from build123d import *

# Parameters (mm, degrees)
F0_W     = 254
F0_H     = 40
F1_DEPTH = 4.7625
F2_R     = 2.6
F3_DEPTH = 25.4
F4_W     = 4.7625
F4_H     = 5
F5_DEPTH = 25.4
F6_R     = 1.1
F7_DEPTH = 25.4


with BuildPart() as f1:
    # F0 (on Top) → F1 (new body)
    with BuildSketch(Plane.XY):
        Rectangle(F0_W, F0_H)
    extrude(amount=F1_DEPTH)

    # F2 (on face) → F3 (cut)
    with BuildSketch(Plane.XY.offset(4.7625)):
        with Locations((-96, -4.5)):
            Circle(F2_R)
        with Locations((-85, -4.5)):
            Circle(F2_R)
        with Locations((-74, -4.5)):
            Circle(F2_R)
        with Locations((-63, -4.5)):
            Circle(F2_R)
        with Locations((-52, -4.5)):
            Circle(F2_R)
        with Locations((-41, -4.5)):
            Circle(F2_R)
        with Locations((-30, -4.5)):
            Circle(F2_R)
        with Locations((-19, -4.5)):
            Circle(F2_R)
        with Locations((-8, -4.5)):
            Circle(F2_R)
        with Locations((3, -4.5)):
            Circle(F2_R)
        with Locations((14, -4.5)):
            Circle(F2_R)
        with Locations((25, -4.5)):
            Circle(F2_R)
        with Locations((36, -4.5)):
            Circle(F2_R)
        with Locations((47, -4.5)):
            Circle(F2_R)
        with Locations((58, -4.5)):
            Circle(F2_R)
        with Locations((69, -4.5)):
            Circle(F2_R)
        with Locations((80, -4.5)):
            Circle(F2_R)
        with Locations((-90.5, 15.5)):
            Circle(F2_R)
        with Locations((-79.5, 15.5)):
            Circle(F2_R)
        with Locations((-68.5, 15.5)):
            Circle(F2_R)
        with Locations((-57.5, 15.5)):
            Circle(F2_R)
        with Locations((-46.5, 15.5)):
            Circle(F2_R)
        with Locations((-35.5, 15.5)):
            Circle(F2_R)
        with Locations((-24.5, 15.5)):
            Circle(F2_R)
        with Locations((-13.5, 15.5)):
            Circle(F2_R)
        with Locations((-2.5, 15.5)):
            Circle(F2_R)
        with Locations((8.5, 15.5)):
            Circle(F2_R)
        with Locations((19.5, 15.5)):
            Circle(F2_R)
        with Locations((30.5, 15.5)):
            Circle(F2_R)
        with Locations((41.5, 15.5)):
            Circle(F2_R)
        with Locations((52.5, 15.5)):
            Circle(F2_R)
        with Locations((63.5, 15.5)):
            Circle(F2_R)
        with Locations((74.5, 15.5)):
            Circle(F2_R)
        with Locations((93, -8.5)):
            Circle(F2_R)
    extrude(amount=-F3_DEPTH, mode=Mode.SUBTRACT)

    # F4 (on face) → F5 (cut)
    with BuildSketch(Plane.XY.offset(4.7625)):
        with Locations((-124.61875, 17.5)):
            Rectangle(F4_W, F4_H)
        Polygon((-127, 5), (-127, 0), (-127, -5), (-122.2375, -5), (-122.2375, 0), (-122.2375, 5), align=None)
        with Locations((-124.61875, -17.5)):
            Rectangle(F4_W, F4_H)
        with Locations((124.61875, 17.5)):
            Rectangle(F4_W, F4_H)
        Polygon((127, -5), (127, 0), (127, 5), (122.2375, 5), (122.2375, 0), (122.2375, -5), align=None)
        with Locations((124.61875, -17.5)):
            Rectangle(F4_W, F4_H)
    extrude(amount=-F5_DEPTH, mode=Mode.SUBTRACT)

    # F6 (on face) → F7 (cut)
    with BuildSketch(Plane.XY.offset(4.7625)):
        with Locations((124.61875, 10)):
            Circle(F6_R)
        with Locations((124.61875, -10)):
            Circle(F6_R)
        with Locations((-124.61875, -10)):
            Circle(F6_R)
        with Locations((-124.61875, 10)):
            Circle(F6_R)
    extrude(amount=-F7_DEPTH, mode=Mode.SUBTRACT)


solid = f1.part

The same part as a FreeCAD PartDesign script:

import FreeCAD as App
import Part
import Sketcher


def add_polygon(sketch, points):
    """Adds a closed chain of lines whose ends are joined by coincident constraints."""
    first, n = sketch.GeometryCount, len(points)
    for a, b in zip(points, points[1:] + points[:1]):
        sketch.addGeometry(Part.LineSegment(App.Vector(*a, 0), App.Vector(*b, 0)), False)
    for i in range(n):
        sketch.addConstraint(Sketcher.Constraint("Coincident", first + i, 2, first + (i + 1) % n, 1))

doc = App.newDocument("Part")
body = doc.addObject("PartDesign::Body", "Body")

# Sketch on XY plane
sketch1 = body.newObject("Sketcher::SketchObject", "Sketch")
sketch1.AttachmentSupport = (doc.getObject("XY_Plane"), [""])
sketch1.MapMode = "FlatFace"
add_polygon(sketch1, [(-127, 20), (-127, -20), (127, -20), (127, 20)])  # lines 0-3
sketch1.addConstraint([
    Sketcher.Constraint("Vertical", 0),
    Sketcher.Constraint("Horizontal", 1),
    Sketcher.Constraint("Vertical", 2),
    Sketcher.Constraint("Horizontal", 3),
    Sketcher.Constraint("Symmetric", 0, 2, 2, 2, -1, 1),
    Sketcher.Constraint("DistanceX", 1, 1, 1, 2, 254.0),
    Sketcher.Constraint("DistanceY", 0, 2, 0, 1, 40.0),
])
pad1 = body.newObject("PartDesign::Pad", "Pad")
pad1.Profile = sketch1
pad1.Length = 4.7625

# Sketch on XY plane
sketch2 = body.newObject("Sketcher::SketchObject", "Sketch001")
sketch2.AttachmentSupport = (doc.getObject("XY_Plane"), [""])
sketch2.MapMode = "FlatFace"
sketch2.AttachmentOffset = App.Placement(App.Vector(0, 0, 4.7625), App.Rotation())
sketch2.addGeometry([
    Part.Circle(App.Vector(-96, -4.5, 0), App.Vector(0, 0, 1), 2.6),  # 0
    Part.Circle(App.Vector(-85, -4.5, 0), App.Vector(0, 0, 1), 2.6),  # 1
    Part.Circle(App.Vector(-74, -4.5, 0), App.Vector(0, 0, 1), 2.6),  # 2
    Part.Circle(App.Vector(-63, -4.5, 0), App.Vector(0, 0, 1), 2.6),  # 3
    Part.Circle(App.Vector(-52, -4.5, 0), App.Vector(0, 0, 1), 2.6),  # 4
    Part.Circle(App.Vector(-41, -4.5, 0), App.Vector(0, 0, 1), 2.6),  # 5
    Part.Circle(App.Vector(-30, -4.5, 0), App.Vector(0, 0, 1), 2.6),  # 6
    Part.Circle(App.Vector(-19, -4.5, 0), App.Vector(0, 0, 1), 2.6),  # 7
    Part.Circle(App.Vector(-8, -4.5, 0), App.Vector(0, 0, 1), 2.6),  # 8
    Part.Circle(App.Vector(3, -4.5, 0), App.Vector(0, 0, 1), 2.6),  # 9
    Part.Circle(App.Vector(14, -4.5, 0), App.Vector(0, 0, 1), 2.6),  # 10
    Part.Circle(App.Vector(25, -4.5, 0), App.Vector(0, 0, 1), 2.6),  # 11
    Part.Circle(App.Vector(36, -4.5, 0), App.Vector(0, 0, 1), 2.6),  # 12
    Part.Circle(App.Vector(47, -4.5, 0), App.Vector(0, 0, 1), 2.6),  # 13
    Part.Circle(App.Vector(58, -4.5, 0), App.Vector(0, 0, 1), 2.6),  # 14
    Part.Circle(App.Vector(69, -4.5, 0), App.Vector(0, 0, 1), 2.6),  # 15
    Part.Circle(App.Vector(80, -4.5, 0), App.Vector(0, 0, 1), 2.6),  # 16
    Part.Circle(App.Vector(-90.5, 15.5, 0), App.Vector(0, 0, 1), 2.6),  # 17
    Part.Circle(App.Vector(-79.5, 15.5, 0), App.Vector(0, 0, 1), 2.6),  # 18
    Part.Circle(App.Vector(-68.5, 15.5, 0), App.Vector(0, 0, 1), 2.6),  # 19
    Part.Circle(App.Vector(-57.5, 15.5, 0), App.Vector(0, 0, 1), 2.6),  # 20
    Part.Circle(App.Vector(-46.5, 15.5, 0), App.Vector(0, 0, 1), 2.6),  # 21
    Part.Circle(App.Vector(-35.5, 15.5, 0), App.Vector(0, 0, 1), 2.6),  # 22
    Part.Circle(App.Vector(-24.5, 15.5, 0), App.Vector(0, 0, 1), 2.6),  # 23
    Part.Circle(App.Vector(-13.5, 15.5, 0), App.Vector(0, 0, 1), 2.6),  # 24
    Part.Circle(App.Vector(-2.5, 15.5, 0), App.Vector(0, 0, 1), 2.6),  # 25
    Part.Circle(App.Vector(8.5, 15.5, 0), App.Vector(0, 0, 1), 2.6),  # 26
    Part.Circle(App.Vector(19.5, 15.5, 0), App.Vector(0, 0, 1), 2.6),  # 27
    Part.Circle(App.Vector(30.5, 15.5, 0), App.Vector(0, 0, 1), 2.6),  # 28
    Part.Circle(App.Vector(41.5, 15.5, 0), App.Vector(0, 0, 1), 2.6),  # 29
    Part.Circle(App.Vector(52.5, 15.5, 0), App.Vector(0, 0, 1), 2.6),  # 30
    Part.Circle(App.Vector(63.5, 15.5, 0), App.Vector(0, 0, 1), 2.6),  # 31
    Part.Circle(App.Vector(74.5, 15.5, 0), App.Vector(0, 0, 1), 2.6),  # 32
    Part.Circle(App.Vector(93, -8.5, 0), App.Vector(0, 0, 1), 2.6),  # 33
], False)
sketch2.addConstraint([
    Sketcher.Constraint("Equal", 0, 1),
    Sketcher.Constraint("Equal", 1, 2),
    Sketcher.Constraint("Equal", 2, 3),
    Sketcher.Constraint("Equal", 3, 4),
    Sketcher.Constraint("Equal", 4, 5),
    Sketcher.Constraint("Equal", 5, 6),
    Sketcher.Constraint("Equal", 6, 7),
    Sketcher.Constraint("Equal", 7, 8),
    Sketcher.Constraint("Equal", 8, 9),
    Sketcher.Constraint("Equal", 9, 10),
    Sketcher.Constraint("Equal", 10, 11),
    Sketcher.Constraint("Equal", 11, 12),
    Sketcher.Constraint("Equal", 12, 13),
    Sketcher.Constraint("Equal", 13, 14),
    Sketcher.Constraint("Equal", 14, 15),
    Sketcher.Constraint("Equal", 15, 16),
    Sketcher.Constraint("Equal", 16, 17),
    Sketcher.Constraint("Equal", 17, 18),
    Sketcher.Constraint("Equal", 18, 19),
    Sketcher.Constraint("Equal", 19, 20),
    Sketcher.Constraint("Equal", 20, 21),
    Sketcher.Constraint("Equal", 21, 22),
    Sketcher.Constraint("Equal", 22, 23),
    Sketcher.Constraint("Equal", 23, 24),
    Sketcher.Constraint("Equal", 24, 25),
    Sketcher.Constraint("Equal", 25, 26),
    Sketcher.Constraint("Equal", 26, 27),
    Sketcher.Constraint("Equal", 27, 28),
    Sketcher.Constraint("Equal", 28, 29),
    Sketcher.Constraint("Equal", 29, 30),
    Sketcher.Constraint("Equal", 30, 31),
    Sketcher.Constraint("Equal", 31, 32),
    Sketcher.Constraint("Equal", 32, 33),
    Sketcher.Constraint("Horizontal", 0, 3, 1, 3),
    Sketcher.Constraint("Horizontal", 1, 3, 2, 3),
    Sketcher.Constraint("Horizontal", 2, 3, 3, 3),
    Sketcher.Constraint("Horizontal", 3, 3, 4, 3),
    Sketcher.Constraint("Horizontal", 4, 3, 5, 3),
    Sketcher.Constraint("Horizontal", 5, 3, 6, 3),
    Sketcher.Constraint("Horizontal", 6, 3, 7, 3),
    Sketcher.Constraint("Horizontal", 7, 3, 8, 3),
    Sketcher.Constraint("Horizontal", 8, 3, 9, 3),
    Sketcher.Constraint("Horizontal", 9, 3, 10, 3),
    Sketcher.Constraint("Horizontal", 10, 3, 11, 3),
    Sketcher.Constraint("Horizontal", 11, 3, 12, 3),
    Sketcher.Constraint("Horizontal", 12, 3, 13, 3),
    Sketcher.Constraint("Horizontal", 13, 3, 14, 3),
    Sketcher.Constraint("Horizontal", 14, 3, 15, 3),
    Sketcher.Constraint("Horizontal", 15, 3, 16, 3),
    Sketcher.Constraint("Horizontal", 17, 3, 18, 3),
    Sketcher.Constraint("Horizontal", 18, 3, 19, 3),
    Sketcher.Constraint("Horizontal", 19, 3, 20, 3),
    Sketcher.Constraint("Horizontal", 20, 3, 21, 3),
    Sketcher.Constraint("Horizontal", 21, 3, 22, 3),
    Sketcher.Constraint("Horizontal", 22, 3, 23, 3),
    Sketcher.Constraint("Horizontal", 23, 3, 24, 3),
    Sketcher.Constraint("Horizontal", 24, 3, 25, 3),
    Sketcher.Constraint("Horizontal", 25, 3, 26, 3),
    Sketcher.Constraint("Horizontal", 26, 3, 27, 3),
    Sketcher.Constraint("Horizontal", 27, 3, 28, 3),
    Sketcher.Constraint("Horizontal", 28, 3, 29, 3),
    Sketcher.Constraint("Horizontal", 29, 3, 30, 3),
    Sketcher.Constraint("Horizontal", 30, 3, 31, 3),
    Sketcher.Constraint("Horizontal", 31, 3, 32, 3),
    Sketcher.Constraint("Diameter", 0, 5.2),
    Sketcher.Constraint("DistanceX", 0, 3, -1, 1, 96.0),
    Sketcher.Constraint("DistanceX", 1, 3, -1, 1, 85.0),
    Sketcher.Constraint("DistanceX", 2, 3, -1, 1, 74.0),
    Sketcher.Constraint("DistanceX", 3, 3, -1, 1, 63.0),
    Sketcher.Constraint("DistanceX", 4, 3, -1, 1, 52.0),
    Sketcher.Constraint("DistanceX", 5, 3, -1, 1, 41.0),
    Sketcher.Constraint("DistanceX", 6, 3, -1, 1, 30.0),
    Sketcher.Constraint("DistanceX", 7, 3, -1, 1, 19.0),
    Sketcher.Constraint("DistanceX", 8, 3, -1, 1, 8.0),
    Sketcher.Constraint("DistanceX", -1, 1, 9, 3, 3.0),
    Sketcher.Constraint("DistanceX", -1, 1, 10, 3, 14.0),
    Sketcher.Constraint("DistanceX", -1, 1, 11, 3, 25.0),
    Sketcher.Constraint("DistanceX", -1, 1, 12, 3, 36.0),
    Sketcher.Constraint("DistanceX", -1, 1, 13, 3, 47.0),
    Sketcher.Constraint("DistanceX", -1, 1, 14, 3, 58.0),
    Sketcher.Constraint("DistanceX", -1, 1, 15, 3, 69.0),
    Sketcher.Constraint("DistanceX", -1, 1, 16, 3, 80.0),
    Sketcher.Constraint("DistanceX", -1, 1, 33, 3, 93.0),
    Sketcher.Constraint("DistanceY", 0, 3, 17, 3, 20.0),
    Sketcher.Constraint("DistanceX", 17, 3, 18, 3, 11.0),
    Sketcher.Constraint("DistanceX", 18, 3, 19, 3, 11.0),
    Sketcher.Constraint("DistanceX", 19, 3, 20, 3, 11.0),
    Sketcher.Constraint("DistanceX", 20, 3, 21, 3, 11.0),
    Sketcher.Constraint("DistanceX", 21, 3, 22, 3, 11.0),
    Sketcher.Constraint("DistanceX", 22, 3, 23, 3, 11.0),
    Sketcher.Constraint("DistanceX", 23, 3, 24, 3, 11.0),
    Sketcher.Constraint("DistanceX", 24, 3, 25, 3, 11.0),
    Sketcher.Constraint("DistanceX", 25, 3, 26, 3, 11.0),
    Sketcher.Constraint("DistanceX", 26, 3, 27, 3, 11.0),
    Sketcher.Constraint("DistanceX", 27, 3, 28, 3, 11.0),
    Sketcher.Constraint("DistanceX", 28, 3, 29, 3, 11.0),
    Sketcher.Constraint("DistanceX", 29, 3, 30, 3, 11.0),
    Sketcher.Constraint("DistanceX", 30, 3, 31, 3, 11.0),
    Sketcher.Constraint("DistanceX", 31, 3, 32, 3, 11.0),
    Sketcher.Constraint("DistanceY", 33, 3, 16, 3, 4.0),
    Sketcher.Constraint("DistanceY", 0, 3, -1, 1, 4.5),
    Sketcher.Constraint("DistanceX", 17, 3, -1, 1, 90.5),
])
pocket1 = body.newObject("PartDesign::Pocket", "Pocket")
pocket1.Profile = sketch2
pocket1.Length = 25.4

# Sketch on XY plane
sketch3 = body.newObject("Sketcher::SketchObject", "Sketch002")
sketch3.AttachmentSupport = (doc.getObject("XY_Plane"), [""])
sketch3.MapMode = "FlatFace"
sketch3.AttachmentOffset = App.Placement(App.Vector(0, 0, 4.7625), App.Rotation())
add_polygon(sketch3, [(-127, 20), (-127, 15), (-122.2375, 15), (-122.2375, 20)])  # lines 0-3
add_polygon(sketch3, [(-127, 5), (-127, -5), (-122.2375, -5), (-122.2375, 5)])  # lines 4-7
add_polygon(sketch3, [(-127, -15), (-127, -20), (-122.2375, -20), (-122.2375, -15)])  # lines 8-11
add_polygon(sketch3, [(122.2375, 20), (122.2375, 15), (127, 15), (127, 20)])  # lines 12-15
add_polygon(sketch3, [(127, -5), (127, 5), (122.2375, 5), (122.2375, -5)])  # lines 16-19
add_polygon(sketch3, [(122.2375, -15), (122.2375, -20), (127, -20), (127, -15)])  # lines 20-23
sketch3.addConstraint([
    Sketcher.Constraint("Vertical", 0),
    Sketcher.Constraint("Horizontal", 1),
    Sketcher.Constraint("Vertical", 2),
    Sketcher.Constraint("Horizontal", 3),
    Sketcher.Constraint("Vertical", 4),
    Sketcher.Constraint("Horizontal", 5),
    Sketcher.Constraint("Vertical", 6),
    Sketcher.Constraint("Horizontal", 7),
    Sketcher.Constraint("Vertical", 8),
    Sketcher.Constraint("Horizontal", 9),
    Sketcher.Constraint("Vertical", 10),
    Sketcher.Constraint("Horizontal", 11),
    Sketcher.Constraint("Vertical", 12),
    Sketcher.Constraint("Horizontal", 13),
    Sketcher.Constraint("Vertical", 14),
    Sketcher.Constraint("Horizontal", 15),
    Sketcher.Constraint("Vertical", 16),
    Sketcher.Constraint("Horizontal", 17),
    Sketcher.Constraint("Vertical", 18),
    Sketcher.Constraint("Horizontal", 19),
    Sketcher.Constraint("Vertical", 20),
    Sketcher.Constraint("Horizontal", 21),
    Sketcher.Constraint("Vertical", 22),
    Sketcher.Constraint("Horizontal", 23),
    Sketcher.Constraint("Symmetric", 10, 2, 12, 2, -1, 1),
    Sketcher.Constraint("Symmetric", 8, 2, 14, 2, -1, 1),
    Sketcher.Constraint("Symmetric", 4, 2, 16, 2, -1, 1),
    Sketcher.Constraint("Symmetric", 6, 2, 18, 2, -1, 1),
    Sketcher.Constraint("Symmetric", 2, 2, 20, 2, -1, 1),
    Sketcher.Constraint("Symmetric", 0, 2, 22, 2, -1, 1),
    Sketcher.Constraint("Symmetric", 1, 2, 12, 2, -2),
    Sketcher.Constraint("Symmetric", 3, 2, 14, 2, -2),
    Sketcher.Constraint("Horizontal", 7, 2, 16, 2),
    Sketcher.Constraint("Vertical", 3, 2, 4, 2),
    Sketcher.Constraint("Vertical", 2, 2, 5, 2),
    Sketcher.Constraint("DistanceY", 0, 2, 0, 1, 5.0),
    Sketcher.Constraint("DistanceY", 4, 2, 4, 1, 10.0),
    Sketcher.Constraint("DistanceX", 0, 2, -1, 1, 127.0),
    Sketcher.Constraint("DistanceY", -1, 1, 0, 2, 15.0),
    Sketcher.Constraint("DistanceX", 1, 1, 1, 2, 4.7625),
])
pocket2 = body.newObject("PartDesign::Pocket", "Pocket001")
pocket2.Profile = sketch3
pocket2.Length = 25.4

# Sketch on XY plane
sketch4 = body.newObject("Sketcher::SketchObject", "Sketch003")
sketch4.AttachmentSupport = (doc.getObject("XY_Plane"), [""])
sketch4.MapMode = "FlatFace"
sketch4.AttachmentOffset = App.Placement(App.Vector(0, 0, 4.7625), App.Rotation())
sketch4.addGeometry([
    Part.Circle(App.Vector(124.61875, 10, 0), App.Vector(0, 0, 1), 1.1),
    Part.Circle(App.Vector(124.61875, -10, 0), App.Vector(0, 0, 1), 1.1),
    Part.Circle(App.Vector(-124.61875, -10, 0), App.Vector(0, 0, 1), 1.1),
    Part.Circle(App.Vector(-124.61875, 10, 0), App.Vector(0, 0, 1), 1.1),
], False)
sketch4.addConstraint([
    Sketcher.Constraint("Equal", 0, 1),
    Sketcher.Constraint("Equal", 1, 2),
    Sketcher.Constraint("Equal", 2, 3),
    Sketcher.Constraint("Symmetric", 0, 3, 2, 3, -1, 1),
    Sketcher.Constraint("Symmetric", 1, 3, 3, 3, -1, 1),
    Sketcher.Constraint("Symmetric", 1, 3, 2, 3, -2),
    Sketcher.Constraint("Diameter", 0, 2.2),
    Sketcher.Constraint("DistanceY", -1, 1, 0, 3, 10.0),
    Sketcher.Constraint("DistanceX", 2, 3, 1, 3, 249.2375),
])
pocket3 = body.newObject("PartDesign::Pocket", "Pocket002")
pocket3.Profile = sketch4
pocket3.Length = 25.4

doc.recompute()
